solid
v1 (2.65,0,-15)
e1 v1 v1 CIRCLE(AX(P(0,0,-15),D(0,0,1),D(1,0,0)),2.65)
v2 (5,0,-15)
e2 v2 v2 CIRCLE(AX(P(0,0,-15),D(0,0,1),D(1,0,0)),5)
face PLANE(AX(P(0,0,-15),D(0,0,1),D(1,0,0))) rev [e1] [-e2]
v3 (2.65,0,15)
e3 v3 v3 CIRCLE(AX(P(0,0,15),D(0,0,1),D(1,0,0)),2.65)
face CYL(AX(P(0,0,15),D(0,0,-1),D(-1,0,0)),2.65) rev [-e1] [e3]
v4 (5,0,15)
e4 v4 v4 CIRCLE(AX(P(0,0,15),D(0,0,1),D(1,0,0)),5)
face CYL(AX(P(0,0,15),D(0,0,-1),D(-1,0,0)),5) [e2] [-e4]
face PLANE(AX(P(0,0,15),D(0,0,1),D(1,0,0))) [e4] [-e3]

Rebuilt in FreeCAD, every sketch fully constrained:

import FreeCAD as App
import Part
import Sketcher
Q = App.Units.Quantity

doc = App.newDocument("Part")
params = doc.addObject("Spreadsheet::Sheet", "Params")
for row, (alias, value) in enumerate([
    ("sketch1_diameter", "10 mm"),
    ("sketch1_diameter2", "5.3 mm"),
    ("pad1_length", "30 mm"),
], start=1):
    params.set(f"A{row}", alias)
    params.set(f"B{row}", "=" + value)
    params.setAlias(f"B{row}", alias)

body = doc.addObject("PartDesign::Body", "Body")

# Sketch on XY plane
sketch1 = body.newObject("Sketcher::SketchObject", "Sketch")
sketch1.AttachmentSupport = (doc.getObject("XY_Plane"), [""])
sketch1.MapMode = "FlatFace"
sketch1.addGeometry(Part.Circle(App.Vector(0, 0, 0), App.Vector(0, 0, 1), 5), False)
sketch1.addGeometry(Part.Circle(App.Vector(0, 0, 0), App.Vector(0, 0, 1), 2.6), False)
sketch1.addConstraint(Sketcher.Constraint("Coincident", 0, 3, -1, 1))
sketch1.addConstraint(Sketcher.Constraint("Coincident", 1, 3, -1, 1))
sketch1.addConstraint(Sketcher.Constraint("Diameter", 0, Q("10 mm")))
sketch1.addConstraint(Sketcher.Constraint("Diameter", 1, Q("5.3 mm")))
sketch1.setExpression("Constraints[2]", "Params.sketch1_diameter")
sketch1.setExpression("Constraints[3]", "Params.sketch1_diameter2")
pad1 = body.newObject("PartDesign::Pad", "Pad")
pad1.Profile = sketch1
pad1.setExpression("Length", "Params.pad1_length")
pad1.Midplane = True

doc.recompute()
